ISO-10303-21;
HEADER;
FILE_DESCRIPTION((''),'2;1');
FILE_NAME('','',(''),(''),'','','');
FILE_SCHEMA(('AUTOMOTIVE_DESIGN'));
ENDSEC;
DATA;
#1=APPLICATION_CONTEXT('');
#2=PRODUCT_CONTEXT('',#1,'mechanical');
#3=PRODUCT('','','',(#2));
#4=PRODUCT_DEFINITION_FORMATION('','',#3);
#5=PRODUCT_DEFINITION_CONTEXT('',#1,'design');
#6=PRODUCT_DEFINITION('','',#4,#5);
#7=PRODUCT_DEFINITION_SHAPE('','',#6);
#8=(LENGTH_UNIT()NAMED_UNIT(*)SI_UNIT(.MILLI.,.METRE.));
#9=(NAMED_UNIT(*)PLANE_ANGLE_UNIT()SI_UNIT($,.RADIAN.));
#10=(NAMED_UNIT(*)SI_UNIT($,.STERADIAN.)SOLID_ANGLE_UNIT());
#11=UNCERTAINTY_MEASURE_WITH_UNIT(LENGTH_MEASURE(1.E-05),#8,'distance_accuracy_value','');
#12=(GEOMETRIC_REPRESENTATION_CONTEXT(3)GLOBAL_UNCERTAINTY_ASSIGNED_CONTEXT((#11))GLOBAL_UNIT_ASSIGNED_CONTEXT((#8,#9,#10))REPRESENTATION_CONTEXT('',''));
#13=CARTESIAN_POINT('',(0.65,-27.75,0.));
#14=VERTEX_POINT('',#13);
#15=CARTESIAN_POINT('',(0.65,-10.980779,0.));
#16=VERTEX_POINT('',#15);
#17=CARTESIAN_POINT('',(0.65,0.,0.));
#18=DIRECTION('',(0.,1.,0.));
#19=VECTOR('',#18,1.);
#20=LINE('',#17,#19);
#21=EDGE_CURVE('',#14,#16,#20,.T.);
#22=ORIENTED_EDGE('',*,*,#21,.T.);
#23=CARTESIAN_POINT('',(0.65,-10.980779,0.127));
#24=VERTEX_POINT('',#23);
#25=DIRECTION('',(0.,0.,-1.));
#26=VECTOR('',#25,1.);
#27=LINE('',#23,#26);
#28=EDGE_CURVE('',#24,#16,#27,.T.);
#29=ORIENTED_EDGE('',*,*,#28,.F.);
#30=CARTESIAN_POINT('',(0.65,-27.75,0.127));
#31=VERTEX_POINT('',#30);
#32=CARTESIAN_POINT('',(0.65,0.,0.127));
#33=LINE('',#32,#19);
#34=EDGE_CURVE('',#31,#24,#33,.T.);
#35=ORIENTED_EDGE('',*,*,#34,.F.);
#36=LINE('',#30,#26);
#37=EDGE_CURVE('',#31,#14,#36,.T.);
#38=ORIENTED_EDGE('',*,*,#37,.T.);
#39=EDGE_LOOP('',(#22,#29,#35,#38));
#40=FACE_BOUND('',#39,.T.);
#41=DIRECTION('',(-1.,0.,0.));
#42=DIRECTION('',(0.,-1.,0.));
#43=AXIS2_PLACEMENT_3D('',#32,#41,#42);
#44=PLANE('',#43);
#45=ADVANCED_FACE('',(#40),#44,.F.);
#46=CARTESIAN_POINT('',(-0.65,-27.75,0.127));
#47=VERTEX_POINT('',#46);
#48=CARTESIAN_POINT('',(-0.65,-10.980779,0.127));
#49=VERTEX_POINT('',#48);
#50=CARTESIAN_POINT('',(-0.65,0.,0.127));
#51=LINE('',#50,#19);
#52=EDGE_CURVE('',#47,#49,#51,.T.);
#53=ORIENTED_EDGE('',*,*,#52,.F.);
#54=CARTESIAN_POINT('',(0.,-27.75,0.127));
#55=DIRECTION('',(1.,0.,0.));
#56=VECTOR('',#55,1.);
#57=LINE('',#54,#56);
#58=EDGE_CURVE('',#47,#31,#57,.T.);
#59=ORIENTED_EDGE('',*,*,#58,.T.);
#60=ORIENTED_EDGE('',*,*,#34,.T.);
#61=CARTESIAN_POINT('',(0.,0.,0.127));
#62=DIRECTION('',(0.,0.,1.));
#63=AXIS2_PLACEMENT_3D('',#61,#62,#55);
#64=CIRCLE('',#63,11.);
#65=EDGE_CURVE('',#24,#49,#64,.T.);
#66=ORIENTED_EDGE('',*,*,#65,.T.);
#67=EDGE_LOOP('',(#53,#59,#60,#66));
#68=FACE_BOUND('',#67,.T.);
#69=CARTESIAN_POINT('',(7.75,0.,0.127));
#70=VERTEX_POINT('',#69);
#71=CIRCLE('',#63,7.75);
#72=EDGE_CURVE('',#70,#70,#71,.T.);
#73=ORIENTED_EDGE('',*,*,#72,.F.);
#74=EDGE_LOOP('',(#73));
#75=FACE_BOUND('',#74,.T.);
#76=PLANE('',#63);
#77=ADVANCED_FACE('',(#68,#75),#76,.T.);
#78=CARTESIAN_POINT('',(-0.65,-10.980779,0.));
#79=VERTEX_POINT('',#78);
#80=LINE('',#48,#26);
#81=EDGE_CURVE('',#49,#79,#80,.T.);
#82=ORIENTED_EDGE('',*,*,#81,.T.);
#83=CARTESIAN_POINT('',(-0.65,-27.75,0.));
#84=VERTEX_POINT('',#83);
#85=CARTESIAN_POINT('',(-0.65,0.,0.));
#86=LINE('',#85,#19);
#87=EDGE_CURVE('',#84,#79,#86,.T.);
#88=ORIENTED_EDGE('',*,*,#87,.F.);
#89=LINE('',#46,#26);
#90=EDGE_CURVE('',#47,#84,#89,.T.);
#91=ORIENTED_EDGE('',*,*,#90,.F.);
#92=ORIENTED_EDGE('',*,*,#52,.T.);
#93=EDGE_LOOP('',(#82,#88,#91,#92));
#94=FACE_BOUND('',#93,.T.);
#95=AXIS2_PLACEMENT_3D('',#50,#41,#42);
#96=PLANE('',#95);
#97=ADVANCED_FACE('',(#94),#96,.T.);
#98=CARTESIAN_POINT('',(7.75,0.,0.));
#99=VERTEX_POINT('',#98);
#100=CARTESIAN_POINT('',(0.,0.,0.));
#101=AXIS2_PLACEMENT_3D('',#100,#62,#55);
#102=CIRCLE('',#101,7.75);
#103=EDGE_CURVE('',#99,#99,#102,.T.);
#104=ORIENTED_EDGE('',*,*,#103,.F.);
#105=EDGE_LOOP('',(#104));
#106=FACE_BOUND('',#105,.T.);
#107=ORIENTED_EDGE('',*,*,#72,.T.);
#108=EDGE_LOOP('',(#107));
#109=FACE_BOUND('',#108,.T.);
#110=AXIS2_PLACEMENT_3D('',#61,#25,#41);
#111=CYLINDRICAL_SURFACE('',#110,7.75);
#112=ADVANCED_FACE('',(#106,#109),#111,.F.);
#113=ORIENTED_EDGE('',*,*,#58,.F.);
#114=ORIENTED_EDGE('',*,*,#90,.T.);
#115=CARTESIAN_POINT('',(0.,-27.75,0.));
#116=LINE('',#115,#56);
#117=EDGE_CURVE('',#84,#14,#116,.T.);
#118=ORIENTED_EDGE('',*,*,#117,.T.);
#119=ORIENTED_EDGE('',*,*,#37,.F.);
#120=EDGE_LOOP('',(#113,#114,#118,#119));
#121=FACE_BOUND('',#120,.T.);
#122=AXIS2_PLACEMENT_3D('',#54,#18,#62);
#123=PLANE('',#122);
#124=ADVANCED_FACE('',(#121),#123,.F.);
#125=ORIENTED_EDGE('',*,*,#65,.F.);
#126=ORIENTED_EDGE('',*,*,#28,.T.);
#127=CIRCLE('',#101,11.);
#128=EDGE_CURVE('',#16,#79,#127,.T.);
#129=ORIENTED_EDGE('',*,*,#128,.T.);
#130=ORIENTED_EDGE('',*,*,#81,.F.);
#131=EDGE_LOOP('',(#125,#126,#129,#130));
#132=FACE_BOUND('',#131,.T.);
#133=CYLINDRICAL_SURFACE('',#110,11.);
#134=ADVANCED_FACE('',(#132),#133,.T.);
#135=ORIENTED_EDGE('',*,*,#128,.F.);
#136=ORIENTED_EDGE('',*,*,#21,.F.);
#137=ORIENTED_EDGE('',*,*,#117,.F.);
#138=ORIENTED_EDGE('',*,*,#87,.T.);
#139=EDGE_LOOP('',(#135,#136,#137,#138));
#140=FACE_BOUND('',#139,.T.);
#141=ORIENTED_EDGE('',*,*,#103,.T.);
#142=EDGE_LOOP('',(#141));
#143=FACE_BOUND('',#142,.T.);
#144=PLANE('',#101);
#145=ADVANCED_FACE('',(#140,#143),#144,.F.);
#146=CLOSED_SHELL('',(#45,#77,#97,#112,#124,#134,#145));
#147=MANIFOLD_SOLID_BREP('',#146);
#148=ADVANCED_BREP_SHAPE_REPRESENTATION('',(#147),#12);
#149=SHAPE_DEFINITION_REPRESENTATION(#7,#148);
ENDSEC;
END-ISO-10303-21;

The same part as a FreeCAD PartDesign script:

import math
import FreeCAD as App
import Part
import Sketcher

V = App.Vector

doc = App.newDocument("Part")
body = doc.addObject("PartDesign::Body", "Body")

# Sketch on XY plane
sketch1 = body.newObject("Sketcher::SketchObject", "Sketch")
sketch1.AttachmentSupport = (doc.getObject("XY_Plane"), [""])
sketch1.MapMode = "FlatFace"
sketch1.addGeometry([
    Part.ArcOfCircle(Part.Circle(V(0, 0, 0), V(0, 0, 1), 11), math.radians(0), math.radians(266.612367)),  # 0
    Part.LineSegment(V(-0.65, -10.980779, 0), V(-0.65, -27.75, 0)),  # 1
    Part.LineSegment(V(-0.65, -27.75, 0), V(0.65, -27.75, 0)),  # 2
    Part.LineSegment(V(0.65, -27.75, 0), V(0.65, -10.980779, 0)),  # 3
    Part.ArcOfCircle(Part.Circle(V(0, 0, 0), V(0, 0, 1), 11), math.radians(-86.612367), math.radians(0)),  # 4
    Part.ArcOfCircle(Part.Circle(V(0, 0, 0), V(0, 0, 1), 7.75), math.radians(-90), math.radians(0)),  # 5
    Part.ArcOfCircle(Part.Circle(V(0, 0, 0), V(0, 0, 1), 7.75), math.radians(0), math.radians(270)),  # 6
], False)
sketch1.addConstraint([
    Sketcher.Constraint("Coincident", 0, 2, 1, 1),
    Sketcher.Constraint("Coincident", 1, 2, 2, 1),
    Sketcher.Constraint("Coincident", 2, 2, 3, 1),
    Sketcher.Constraint("Coincident", 3, 2, 4, 1),
    Sketcher.Constraint("Tangent", 4, 2, 0, 1),
    Sketcher.Constraint("Tangent", 5, 1, 6, 2),
    Sketcher.Constraint("Coincident", 6, 1, 5, 2),
    Sketcher.Constraint("Vertical", 1),
    Sketcher.Constraint("Horizontal", 2),
    Sketcher.Constraint("Vertical", 3),
    Sketcher.Constraint("Coincident", 0, 3, -1, 1),
    Sketcher.Constraint("Coincident", 5, 3, -1, 1),
    Sketcher.Constraint("Equal", 0, 4),
    Sketcher.Constraint("PointOnObject", 4, 2, -1),
    Sketcher.Constraint("PointOnObject", 5, 1, -2),
    Sketcher.Constraint("PointOnObject", 6, 1, -1),
    Sketcher.Constraint("Horizontal", 0, 2, 3, 2),
    Sketcher.Constraint("Radius", 0, 11.0),
    Sketcher.Constraint("Radius", 5, 7.75),
    Sketcher.Constraint("DistanceX", 2, 1, 2, 2, 1.3),
    Sketcher.Constraint("DistanceY", 1, 2, -1, 1, 27.75),
])
pad1 = body.newObject("PartDesign::Pad", "Pad")
pad1.Profile = sketch1
pad1.Length = 0.127

doc.recompute()
